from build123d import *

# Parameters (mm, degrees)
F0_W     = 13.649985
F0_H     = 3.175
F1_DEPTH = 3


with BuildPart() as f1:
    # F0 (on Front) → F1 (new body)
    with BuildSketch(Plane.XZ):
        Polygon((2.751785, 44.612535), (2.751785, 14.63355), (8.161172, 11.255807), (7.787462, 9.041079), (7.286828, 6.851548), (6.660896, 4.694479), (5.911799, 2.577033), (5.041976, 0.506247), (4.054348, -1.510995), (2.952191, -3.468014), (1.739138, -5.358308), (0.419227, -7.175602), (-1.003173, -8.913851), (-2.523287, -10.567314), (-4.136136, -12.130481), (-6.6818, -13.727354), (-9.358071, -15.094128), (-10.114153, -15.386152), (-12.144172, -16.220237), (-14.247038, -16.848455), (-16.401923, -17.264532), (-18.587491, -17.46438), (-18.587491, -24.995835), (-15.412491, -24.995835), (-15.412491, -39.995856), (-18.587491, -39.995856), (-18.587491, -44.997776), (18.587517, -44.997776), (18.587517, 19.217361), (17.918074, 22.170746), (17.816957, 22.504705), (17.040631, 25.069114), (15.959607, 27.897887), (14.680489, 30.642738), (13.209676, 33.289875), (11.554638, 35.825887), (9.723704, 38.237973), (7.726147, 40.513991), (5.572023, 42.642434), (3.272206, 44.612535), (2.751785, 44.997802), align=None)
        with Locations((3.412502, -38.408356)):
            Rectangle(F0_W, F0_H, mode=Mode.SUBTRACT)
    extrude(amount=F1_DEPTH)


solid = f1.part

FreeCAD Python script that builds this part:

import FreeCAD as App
import Part
import Sketcher
from FreeCAD import Vector
Q = App.Units.Quantity


def add_polygon(sketch, points):
    """Adds a closed chain of lines whose ends are joined by coincident constraints."""
    first, n = sketch.GeometryCount, len(points)
    for a, b in zip(points, points[1:] + points[:1]):
        sketch.addGeometry(Part.LineSegment(App.Vector(*a, 0), App.Vector(*b, 0)), False)
    for i in range(n):
        sketch.addConstraint(Sketcher.Constraint("Coincident", first + i, 2, first + (i + 1) % n, 1))

doc = App.newDocument("Part")
body = doc.addObject("PartDesign::Body", "Body")

# Sketch on XZ plane
sketch1 = body.newObject("Sketcher::SketchObject", "Sketch")
sketch1.AttachmentSupport = (doc.getObject("XZ_Plane"), [""])
sketch1.MapMode = "FlatFace"
add_polygon(sketch1, [(2.751785, 14.63355), (8.161172, 11.255807), (7.787462, 9.041079), (7.286828, 6.851548), (6.660896, 4.694479), (5.911799, 2.577033), (5.041976, 0.506247), (4.054348, -1.510995), (2.952191, -3.468014), (1.739138, -5.358308), (0.419227, -7.175602), (-1.003173, -8.913851), (-2.523287, -10.567314), (-4.136136, -12.130481), (-6.6818, -13.727354), (-9.358071, -15.094128), (-10.114153, -15.386152), (-12.144172, -16.220237), (-14.247038, -16.848455), (-16.401923, -17.264532), (-18.587491, -17.46438), (-18.587491, -24.995835), (-15.412491, -24.995835), (-15.412491, -39.995856), (-18.587491, -39.995856), (-18.587491, -44.997776), (18.587517, -44.997776), (18.587517, 19.217361), (17.918074, 22.170746), (17.816957, 22.504705), (17.040631, 25.069114), (15.959607, 27.897887), (14.680489, 30.642738), (13.209676, 33.289875), (11.554638, 35.825887), (9.723704, 38.237973), (7.726147, 40.513991), (5.572023, 42.642434), (3.272206, 44.612535), (2.751785, 44.997802)])  # lines 0-39
add_polygon(sketch1, [(10.237495, -39.995856), (-3.412491, -39.995856), (-3.412491, -36.820856), (10.237495, -36.820856)])  # lines 40-43
sketch1.addConstraint([
    Sketcher.Constraint("Vertical", 20),
    Sketcher.Constraint("Horizontal", 21),
    Sketcher.Constraint("Vertical", 22),
    Sketcher.Constraint("Horizontal", 23),
    Sketcher.Constraint("Vertical", 24),
    Sketcher.Constraint("Horizontal", 25),
    Sketcher.Constraint("Vertical", 26),
    Sketcher.Constraint("Vertical", 39),
    Sketcher.Constraint("Horizontal", 40),
    Sketcher.Constraint("Vertical", 41),
    Sketcher.Constraint("Horizontal", 42),
    Sketcher.Constraint("Vertical", 43),
    Sketcher.Constraint("Horizontal", 23, 2, 40, 2),
    Sketcher.Constraint("Vertical", 20, 2, 23, 2),
    Sketcher.Constraint("Equal", 23, 41),
    Sketcher.Constraint("Equal", 1, 2),
    Sketcher.Constraint("Equal", 2, 6),
    Sketcher.Constraint("Equal", 6, 7),
    Sketcher.Constraint("Equal", 4, 9),
    Sketcher.Constraint("Equal", 9, 10),
    Sketcher.Constraint("Equal", 2, 11),
    Sketcher.Constraint("Equal", 18, 19),
    Sketcher.Constraint("Equal", 27, 32),
    Sketcher.Constraint("DistanceX", 22, 2, 40, 2, Q("12 mm")),
    Sketcher.Constraint("DistanceX", 21, 1, 21, 2, Q("3.175 mm")),
    Sketcher.Constraint("DistanceY", 30, 2, 33, 2, Q("7.928 mm")),
    Sketcher.Constraint("DistanceY", 2, 2, 39, 2, Q("7.782002 mm")),
    Sketcher.Constraint("Distance", 17, Q("2.194699 mm")),
    Sketcher.Constraint("DistanceY", 22, 2, 22, 1, Q("15.000021 mm")),
    Sketcher.Constraint("DistanceY", 24, 2, 24, 1, Q("5.00192 mm")),
    Sketcher.Constraint("DistanceX", -1, 1, 4, 2, Q("5.911799 mm")),
    Sketcher.Constraint("DistanceY", 9, 2, -1, 1, Q("7.175602 mm")),
    Sketcher.Constraint("DistanceX", 13, 2, -1, 1, Q("6.6818 mm")),
    Sketcher.Constraint("DistanceY", 3, 2, 1, 2, Q("4.3466 mm")),
    Sketcher.Constraint("DistanceY", 5, 2, 2, 2, Q("6.345301 mm")),
    Sketcher.Constraint("DistanceX", 10, 2, 9, 2, Q("1.4224 mm")),
    Sketcher.Constraint("DistanceY", 11, 2, 7, 2, Q("7.0993 mm")),
    Sketcher.Constraint("DistanceY", 15, 2, 10, 2, Q("6.472301 mm")),
    Sketcher.Constraint("DistanceX", 16, 2, 14, 2, Q("2.786101 mm")),
    Sketcher.Constraint("DistanceY", 17, 2, 13, 2, Q("3.121101 mm")),
    Sketcher.Constraint("DistanceX", 17, 2, 12, 2, Q("10.110902 mm")),
    Sketcher.Constraint("DistanceY", 22, 2, 17, 2, Q("23.147401 mm")),
    Sketcher.Constraint("DistanceX", 32, 2, 27, 2, Q("4.708398 mm")),
    Sketcher.Constraint("DistanceY", 36, 2, 37, 2, Q("1.970101 mm")),
    Sketcher.Constraint("Distance", 0, Q("6.377352 mm")),
    Sketcher.Constraint("Distance", 3, Q("2.246049 mm")),
    Sketcher.Constraint("Distance", 5, Q("2.246051 mm")),
    Sketcher.Constraint("Distance", 14, Q("3.005079 mm")),
    Sketcher.Constraint("Distance", 28, Q("0.348932 mm")),
    Sketcher.Constraint("Distance", 31, Q("3.028259 mm")),
    Sketcher.Constraint("Distance", 34, Q("3.02828 mm")),
    Sketcher.Constraint("Distance", 38, Q("0.64751 mm")),
    Sketcher.Constraint("DistanceX", 25, 1, 25, 2, Q("37.175008 mm")),
    Sketcher.Constraint("DistanceX", 40, 2, 40, 1, Q("13.649985 mm")),
    Sketcher.Constraint("DistanceY", 20, 2, 20, 1, Q("7.531455 mm")),
    Sketcher.Constraint("DistanceY", 26, 1, 26, 2, Q("64.215137 mm")),
    Sketcher.Constraint("DistanceY", 39, 2, 39, 1, Q("30.364252 mm")),
    Sketcher.Constraint("DistanceX", -1, 1, 1, 2, Q("7.787462 mm")),
    Sketcher.Constraint("DistanceY", -1, 1, 1, 2, Q("9.041079 mm")),
    Sketcher.Constraint("DistanceY", -1, 1, 2, 2, Q("6.851548 mm")),
    Sketcher.Constraint("DistanceX", -1, 1, 7, 2, Q("2.952191 mm")),
    Sketcher.Constraint("DistanceX", -1, 1, 8, 2, Q("1.739138 mm")),
    Sketcher.Constraint("DistanceY", 10, 2, -1, 1, Q("8.913851 mm")),
    Sketcher.Constraint("DistanceY", 12, 2, -1, 1, Q("12.130481 mm")),
    Sketcher.Constraint("DistanceX", 14, 2, -1, 1, Q("9.358071 mm")),
    Sketcher.Constraint("DistanceY", 18, 2, -1, 1, Q("17.264532 mm")),
    Sketcher.Constraint("DistanceX", 19, 2, -1, 1, Q("18.587491 mm")),
    Sketcher.Constraint("DistanceY", 19, 2, -1, 1, Q("17.46438 mm")),
    Sketcher.Constraint("DistanceX", -1, 1, 29, 2, Q("17.040631 mm")),
    Sketcher.Constraint("DistanceX", -1, 1, 31, 2, Q("14.680489 mm")),
    Sketcher.Constraint("DistanceY", -1, 1, 31, 2, Q("30.642738 mm")),
    Sketcher.Constraint("DistanceX", -1, 1, 33, 2, Q("11.554638 mm")),
    Sketcher.Constraint("DistanceY", -1, 1, 35, 2, Q("40.513991 mm")),
    Sketcher.Constraint("DistanceX", 1, 2, 0, 2, Q("0.37371 mm")),
    Sketcher.Constraint("DistanceY", 1, 2, 0, 2, Q("2.214728 mm")),
    Sketcher.Constraint("DistanceY", 6, 2, 5, 2, Q("2.017242 mm")),
    Sketcher.Constraint("DistanceY", 8, 2, 4, 2, Q("7.935341 mm")),
    Sketcher.Constraint("DistanceX", 12, 2, 11, 2, Q("1.612849 mm")),
    Sketcher.Constraint("DistanceX", 15, 2, 14, 2, Q("0.756082 mm")),
    Sketcher.Constraint("DistanceY", 0, 2, 27, 2, Q("10.914939 mm")),
    Sketcher.Constraint("DistanceY", 27, 2, 28, 2, Q("0.333959 mm")),
    Sketcher.Constraint("DistanceX", 28, 2, 26, 2, Q("0.77056 mm")),
    Sketcher.Constraint("DistanceY", 28, 2, 29, 2, Q("2.564409 mm")),
    Sketcher.Constraint("DistanceX", 30, 2, 28, 2, Q("1.85735 mm")),
    Sketcher.Constraint("DistanceY", 29, 2, 34, 2, Q("13.168859 mm")),
    Sketcher.Constraint("DistanceX", 35, 2, 33, 2, Q("3.828491 mm")),
    Sketcher.Constraint("DistanceX", 36, 2, 34, 2, Q("4.151681 mm")),
    Sketcher.Constraint("DistanceY", 34, 2, 36, 2, Q("4.404461 mm")),
])
pad1 = body.newObject("PartDesign::Pad", "Pad")
pad1.Profile = sketch1
pad1.Length = 3

doc.recompute()
